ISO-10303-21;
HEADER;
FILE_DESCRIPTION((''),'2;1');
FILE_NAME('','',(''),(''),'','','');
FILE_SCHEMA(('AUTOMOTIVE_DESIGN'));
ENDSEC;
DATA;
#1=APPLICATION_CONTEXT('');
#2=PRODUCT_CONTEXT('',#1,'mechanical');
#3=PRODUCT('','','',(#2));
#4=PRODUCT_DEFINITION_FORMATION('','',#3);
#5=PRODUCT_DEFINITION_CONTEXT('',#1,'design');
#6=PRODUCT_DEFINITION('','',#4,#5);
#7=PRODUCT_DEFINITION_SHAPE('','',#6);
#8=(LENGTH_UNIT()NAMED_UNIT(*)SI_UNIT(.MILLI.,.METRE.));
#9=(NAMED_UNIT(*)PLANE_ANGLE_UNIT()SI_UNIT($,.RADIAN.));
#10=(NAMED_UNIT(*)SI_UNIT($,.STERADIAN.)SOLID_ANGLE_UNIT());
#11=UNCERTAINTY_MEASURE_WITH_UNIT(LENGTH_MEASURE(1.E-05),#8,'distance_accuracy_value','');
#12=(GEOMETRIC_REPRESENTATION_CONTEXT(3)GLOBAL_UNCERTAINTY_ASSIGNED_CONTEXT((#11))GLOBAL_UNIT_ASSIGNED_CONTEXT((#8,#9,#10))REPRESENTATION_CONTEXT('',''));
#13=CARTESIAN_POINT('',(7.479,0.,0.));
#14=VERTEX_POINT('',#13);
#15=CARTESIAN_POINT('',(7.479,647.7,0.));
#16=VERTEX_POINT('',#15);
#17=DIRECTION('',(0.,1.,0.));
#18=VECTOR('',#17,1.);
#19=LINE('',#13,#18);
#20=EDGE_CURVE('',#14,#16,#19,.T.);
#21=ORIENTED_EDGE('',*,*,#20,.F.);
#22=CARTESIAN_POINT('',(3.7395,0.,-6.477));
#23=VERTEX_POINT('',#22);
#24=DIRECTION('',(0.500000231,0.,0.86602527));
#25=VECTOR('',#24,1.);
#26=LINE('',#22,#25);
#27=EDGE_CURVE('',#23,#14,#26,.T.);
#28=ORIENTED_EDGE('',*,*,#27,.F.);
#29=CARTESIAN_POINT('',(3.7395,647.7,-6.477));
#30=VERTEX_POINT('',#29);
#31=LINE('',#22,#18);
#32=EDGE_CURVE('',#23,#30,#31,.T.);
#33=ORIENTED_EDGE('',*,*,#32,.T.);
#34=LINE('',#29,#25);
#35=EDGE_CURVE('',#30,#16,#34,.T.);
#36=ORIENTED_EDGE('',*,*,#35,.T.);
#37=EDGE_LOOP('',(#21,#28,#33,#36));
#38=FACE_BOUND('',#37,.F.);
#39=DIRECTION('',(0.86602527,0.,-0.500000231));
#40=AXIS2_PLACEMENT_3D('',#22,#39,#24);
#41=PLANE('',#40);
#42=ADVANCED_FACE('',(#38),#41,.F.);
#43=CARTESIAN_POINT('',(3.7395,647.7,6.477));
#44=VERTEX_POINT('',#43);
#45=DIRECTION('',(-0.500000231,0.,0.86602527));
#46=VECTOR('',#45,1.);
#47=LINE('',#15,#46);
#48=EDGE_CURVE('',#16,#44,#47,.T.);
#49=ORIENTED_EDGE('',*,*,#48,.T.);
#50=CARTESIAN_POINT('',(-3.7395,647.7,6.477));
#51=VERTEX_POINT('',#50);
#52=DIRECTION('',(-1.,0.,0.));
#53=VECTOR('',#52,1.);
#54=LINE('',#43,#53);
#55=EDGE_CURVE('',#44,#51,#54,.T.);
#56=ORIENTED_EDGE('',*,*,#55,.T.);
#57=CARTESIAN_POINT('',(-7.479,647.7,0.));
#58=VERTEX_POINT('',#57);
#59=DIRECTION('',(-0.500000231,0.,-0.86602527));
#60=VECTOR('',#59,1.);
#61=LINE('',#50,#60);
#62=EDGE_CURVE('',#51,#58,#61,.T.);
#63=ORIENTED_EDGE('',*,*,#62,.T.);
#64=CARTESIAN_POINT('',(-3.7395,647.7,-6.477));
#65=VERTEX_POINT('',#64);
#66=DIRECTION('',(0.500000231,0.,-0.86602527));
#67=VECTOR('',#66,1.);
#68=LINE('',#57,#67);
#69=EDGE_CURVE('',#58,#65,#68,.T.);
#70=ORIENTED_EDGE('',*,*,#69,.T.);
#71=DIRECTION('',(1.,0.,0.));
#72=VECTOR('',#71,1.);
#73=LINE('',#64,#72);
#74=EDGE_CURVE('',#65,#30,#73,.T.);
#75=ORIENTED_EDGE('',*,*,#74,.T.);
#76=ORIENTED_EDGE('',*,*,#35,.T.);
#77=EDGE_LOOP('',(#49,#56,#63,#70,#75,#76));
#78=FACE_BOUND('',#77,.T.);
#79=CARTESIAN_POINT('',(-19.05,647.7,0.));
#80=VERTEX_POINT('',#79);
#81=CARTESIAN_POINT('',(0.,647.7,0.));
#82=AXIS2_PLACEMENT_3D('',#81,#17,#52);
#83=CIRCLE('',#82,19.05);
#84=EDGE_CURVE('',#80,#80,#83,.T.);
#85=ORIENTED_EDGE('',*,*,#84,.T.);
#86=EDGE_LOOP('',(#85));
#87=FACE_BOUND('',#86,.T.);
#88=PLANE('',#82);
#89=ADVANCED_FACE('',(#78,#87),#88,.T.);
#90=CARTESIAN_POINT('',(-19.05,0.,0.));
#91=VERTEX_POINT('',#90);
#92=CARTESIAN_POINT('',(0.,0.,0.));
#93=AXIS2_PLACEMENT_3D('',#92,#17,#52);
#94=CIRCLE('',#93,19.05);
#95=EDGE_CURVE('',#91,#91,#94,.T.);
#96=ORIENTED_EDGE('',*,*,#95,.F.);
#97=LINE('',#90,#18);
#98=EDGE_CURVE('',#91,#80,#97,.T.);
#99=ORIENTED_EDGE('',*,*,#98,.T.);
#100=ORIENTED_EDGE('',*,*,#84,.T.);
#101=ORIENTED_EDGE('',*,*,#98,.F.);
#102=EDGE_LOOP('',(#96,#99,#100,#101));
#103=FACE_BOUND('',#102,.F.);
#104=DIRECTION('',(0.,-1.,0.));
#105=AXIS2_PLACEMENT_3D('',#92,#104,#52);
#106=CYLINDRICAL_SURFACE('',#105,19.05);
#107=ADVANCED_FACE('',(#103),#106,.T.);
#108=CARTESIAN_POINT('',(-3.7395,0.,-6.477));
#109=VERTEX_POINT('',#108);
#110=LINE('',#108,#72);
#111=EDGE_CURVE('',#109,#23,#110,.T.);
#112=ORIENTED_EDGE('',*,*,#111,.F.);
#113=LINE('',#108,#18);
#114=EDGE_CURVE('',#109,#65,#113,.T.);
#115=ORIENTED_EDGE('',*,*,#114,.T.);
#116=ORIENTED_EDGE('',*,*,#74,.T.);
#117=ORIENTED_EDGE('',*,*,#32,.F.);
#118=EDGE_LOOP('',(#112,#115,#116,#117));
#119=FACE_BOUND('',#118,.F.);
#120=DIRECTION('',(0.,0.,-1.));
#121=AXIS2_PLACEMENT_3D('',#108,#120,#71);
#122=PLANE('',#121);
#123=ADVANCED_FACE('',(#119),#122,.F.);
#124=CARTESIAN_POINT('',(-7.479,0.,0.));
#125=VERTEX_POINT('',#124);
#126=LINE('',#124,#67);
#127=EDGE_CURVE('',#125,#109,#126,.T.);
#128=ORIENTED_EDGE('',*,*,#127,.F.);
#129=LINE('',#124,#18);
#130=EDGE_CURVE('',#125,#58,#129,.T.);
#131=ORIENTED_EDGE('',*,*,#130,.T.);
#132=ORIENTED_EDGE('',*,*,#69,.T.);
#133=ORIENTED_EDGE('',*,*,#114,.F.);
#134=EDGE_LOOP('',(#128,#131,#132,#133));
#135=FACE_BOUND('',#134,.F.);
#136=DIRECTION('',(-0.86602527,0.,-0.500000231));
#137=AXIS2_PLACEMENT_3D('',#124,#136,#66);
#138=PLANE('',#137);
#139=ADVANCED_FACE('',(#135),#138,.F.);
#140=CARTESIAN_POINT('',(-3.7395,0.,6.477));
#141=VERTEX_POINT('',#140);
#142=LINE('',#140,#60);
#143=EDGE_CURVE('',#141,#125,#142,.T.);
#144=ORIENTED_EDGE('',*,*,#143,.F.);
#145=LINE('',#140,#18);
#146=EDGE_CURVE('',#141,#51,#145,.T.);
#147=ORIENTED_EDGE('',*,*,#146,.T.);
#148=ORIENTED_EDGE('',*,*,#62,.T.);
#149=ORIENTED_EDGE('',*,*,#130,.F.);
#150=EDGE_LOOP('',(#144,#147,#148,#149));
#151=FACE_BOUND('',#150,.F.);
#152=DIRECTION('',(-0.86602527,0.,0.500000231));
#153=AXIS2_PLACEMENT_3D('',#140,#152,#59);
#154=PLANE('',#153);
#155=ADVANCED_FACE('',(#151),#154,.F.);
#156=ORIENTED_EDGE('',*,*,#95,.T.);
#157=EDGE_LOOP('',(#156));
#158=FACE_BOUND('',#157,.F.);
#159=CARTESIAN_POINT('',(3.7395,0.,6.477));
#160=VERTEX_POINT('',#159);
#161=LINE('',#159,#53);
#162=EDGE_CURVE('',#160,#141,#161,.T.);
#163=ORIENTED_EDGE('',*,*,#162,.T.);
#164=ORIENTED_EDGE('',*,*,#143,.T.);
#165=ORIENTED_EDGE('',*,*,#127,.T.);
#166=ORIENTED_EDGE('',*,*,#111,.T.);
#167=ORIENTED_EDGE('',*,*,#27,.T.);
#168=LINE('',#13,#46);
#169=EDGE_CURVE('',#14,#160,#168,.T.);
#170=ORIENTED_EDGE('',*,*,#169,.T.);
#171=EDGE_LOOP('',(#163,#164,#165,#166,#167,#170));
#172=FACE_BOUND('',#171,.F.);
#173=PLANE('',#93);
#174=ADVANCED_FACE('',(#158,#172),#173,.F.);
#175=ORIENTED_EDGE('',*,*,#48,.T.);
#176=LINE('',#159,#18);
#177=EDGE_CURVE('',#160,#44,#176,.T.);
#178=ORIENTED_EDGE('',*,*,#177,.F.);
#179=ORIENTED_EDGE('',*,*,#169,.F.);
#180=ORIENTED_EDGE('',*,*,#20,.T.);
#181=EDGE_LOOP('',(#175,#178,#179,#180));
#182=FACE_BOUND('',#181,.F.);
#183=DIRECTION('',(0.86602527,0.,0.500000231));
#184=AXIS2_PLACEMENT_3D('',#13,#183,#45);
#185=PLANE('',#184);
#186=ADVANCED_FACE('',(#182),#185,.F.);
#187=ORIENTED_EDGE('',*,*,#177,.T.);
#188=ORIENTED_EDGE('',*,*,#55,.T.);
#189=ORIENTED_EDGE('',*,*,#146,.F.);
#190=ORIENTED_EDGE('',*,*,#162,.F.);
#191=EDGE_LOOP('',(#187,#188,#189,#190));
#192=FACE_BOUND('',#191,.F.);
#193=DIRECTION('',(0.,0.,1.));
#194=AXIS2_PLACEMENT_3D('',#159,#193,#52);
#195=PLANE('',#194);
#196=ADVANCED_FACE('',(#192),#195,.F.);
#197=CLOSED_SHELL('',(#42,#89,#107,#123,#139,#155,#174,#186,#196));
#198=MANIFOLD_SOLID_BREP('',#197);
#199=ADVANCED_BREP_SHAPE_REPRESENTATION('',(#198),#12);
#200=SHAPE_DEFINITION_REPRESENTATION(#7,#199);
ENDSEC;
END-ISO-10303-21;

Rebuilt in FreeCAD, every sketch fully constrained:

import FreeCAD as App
import Part
import Sketcher
from FreeCAD import Vector
Q = App.Units.Quantity


def add_polygon(sketch, points):
    """Adds a closed chain of lines whose ends are joined by coincident constraints."""
    first, n = sketch.GeometryCount, len(points)
    for a, b in zip(points, points[1:] + points[:1]):
        sketch.addGeometry(Part.LineSegment(App.Vector(*a, 0), App.Vector(*b, 0)), False)
    for i in range(n):
        sketch.addConstraint(Sketcher.Constraint("Coincident", first + i, 2, first + (i + 1) % n, 1))

doc = App.newDocument("Part")
body = doc.addObject("PartDesign::Body", "Body")

# Sketch on XZ plane
sketch1 = body.newObject("Sketcher::SketchObject", "Sketch")
sketch1.AttachmentSupport = (doc.getObject("XZ_Plane"), [""])
sketch1.MapMode = "FlatFace"
sketch1.addGeometry(Part.Circle(Vector(0, 0, 0), Vector(0, 0, 1), 19), False)  # 0
add_polygon(sketch1, [(-4, -6), (4, -6), (7, 0), (4, 6), (-4, 6), (-7, 0)])  # lines 1-6
sketch1.addConstraint(Sketcher.Constraint("Horizontal", 1))
sketch1.addConstraint(Sketcher.Constraint("Horizontal", 4))
sketch1.addConstraint(Sketcher.Constraint("Coincident", 0, 3, -1, 1))
sketch1.addConstraint(Sketcher.Constraint("Symmetric", 1, 2, 4, 2, -1, 1))
sketch1.addConstraint(Sketcher.Constraint("Symmetric", 2, 2, 5, 2, -1, 1))
sketch1.addConstraint(Sketcher.Constraint("PointOnObject", 2, 2, -1))
sketch1.addConstraint(Sketcher.Constraint("Parallel", 3, 6))
sketch1.addConstraint(Sketcher.Constraint("Vertical", 1, 2, 3, 2))
sketch1.addConstraint(Sketcher.Constraint("Diameter", 0, Q("1.5 in")))
sketch1.addConstraint(Sketcher.Constraint("DistanceY", 1, 2, 3, 2, Q("0.51 in")))
sketch1.addConstraint(Sketcher.Constraint("Angle", 2, Q("60 deg")))
sketch1.addConstraint(Sketcher.Constraint("DistanceX", 1, 1, 1, 2, Q("7.479 mm")))
pad1 = body.newObject("PartDesign::Pad", "Pad")
pad1.Profile = sketch1
pad1.Length = Q("25.5 in")
pad1.Reversed = True

doc.recompute()
